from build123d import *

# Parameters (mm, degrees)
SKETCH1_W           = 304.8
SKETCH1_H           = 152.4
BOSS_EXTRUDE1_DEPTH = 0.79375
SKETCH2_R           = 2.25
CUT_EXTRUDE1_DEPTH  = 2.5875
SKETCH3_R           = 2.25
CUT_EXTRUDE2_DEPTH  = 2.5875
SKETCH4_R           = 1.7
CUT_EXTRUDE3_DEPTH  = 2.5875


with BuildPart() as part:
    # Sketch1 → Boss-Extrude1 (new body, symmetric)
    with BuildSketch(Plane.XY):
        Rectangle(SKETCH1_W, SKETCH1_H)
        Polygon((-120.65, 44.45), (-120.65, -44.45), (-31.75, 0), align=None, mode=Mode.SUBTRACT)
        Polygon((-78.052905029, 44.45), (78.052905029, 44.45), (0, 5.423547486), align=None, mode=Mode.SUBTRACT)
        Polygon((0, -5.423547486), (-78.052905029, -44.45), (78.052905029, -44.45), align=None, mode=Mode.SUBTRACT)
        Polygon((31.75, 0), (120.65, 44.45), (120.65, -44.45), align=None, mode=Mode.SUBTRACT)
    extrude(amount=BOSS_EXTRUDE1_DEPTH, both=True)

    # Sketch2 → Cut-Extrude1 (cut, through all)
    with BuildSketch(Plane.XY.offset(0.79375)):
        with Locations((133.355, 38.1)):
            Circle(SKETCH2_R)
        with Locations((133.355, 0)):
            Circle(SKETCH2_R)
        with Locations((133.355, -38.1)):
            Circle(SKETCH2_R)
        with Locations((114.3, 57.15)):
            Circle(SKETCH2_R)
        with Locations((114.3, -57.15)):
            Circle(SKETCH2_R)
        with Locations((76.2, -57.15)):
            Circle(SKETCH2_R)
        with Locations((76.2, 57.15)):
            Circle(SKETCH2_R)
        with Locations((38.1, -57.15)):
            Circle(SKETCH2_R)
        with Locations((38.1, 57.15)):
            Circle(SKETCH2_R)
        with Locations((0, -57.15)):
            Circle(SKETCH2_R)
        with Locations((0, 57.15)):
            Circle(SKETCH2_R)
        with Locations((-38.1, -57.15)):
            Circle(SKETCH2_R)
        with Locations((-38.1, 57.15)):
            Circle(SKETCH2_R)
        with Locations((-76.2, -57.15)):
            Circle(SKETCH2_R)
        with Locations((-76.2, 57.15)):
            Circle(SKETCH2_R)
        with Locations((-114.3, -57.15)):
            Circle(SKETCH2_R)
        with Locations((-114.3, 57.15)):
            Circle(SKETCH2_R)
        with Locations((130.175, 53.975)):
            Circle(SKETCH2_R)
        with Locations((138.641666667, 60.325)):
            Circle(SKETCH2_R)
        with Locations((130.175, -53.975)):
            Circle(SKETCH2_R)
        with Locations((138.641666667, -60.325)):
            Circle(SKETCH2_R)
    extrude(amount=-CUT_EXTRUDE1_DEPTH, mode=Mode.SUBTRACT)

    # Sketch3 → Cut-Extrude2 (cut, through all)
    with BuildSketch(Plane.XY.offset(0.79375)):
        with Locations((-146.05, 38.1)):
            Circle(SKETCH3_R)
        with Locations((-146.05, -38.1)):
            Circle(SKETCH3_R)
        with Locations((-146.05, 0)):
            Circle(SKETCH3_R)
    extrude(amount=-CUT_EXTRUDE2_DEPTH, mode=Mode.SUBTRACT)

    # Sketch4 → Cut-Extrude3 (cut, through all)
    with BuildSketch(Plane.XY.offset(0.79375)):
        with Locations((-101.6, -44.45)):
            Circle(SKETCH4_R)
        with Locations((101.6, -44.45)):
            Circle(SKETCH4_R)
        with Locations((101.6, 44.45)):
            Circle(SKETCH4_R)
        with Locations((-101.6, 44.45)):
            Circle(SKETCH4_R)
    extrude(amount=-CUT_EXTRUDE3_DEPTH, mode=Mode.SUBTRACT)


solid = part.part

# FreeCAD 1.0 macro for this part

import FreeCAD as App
import Part
import Sketcher

V = App.Vector
Q = App.Units.Quantity

doc = App.newDocument("Part")
body = doc.addObject("PartDesign::Body", "Body")

# Sketch on XY plane
sketch1 = body.newObject("Sketcher::SketchObject", "Sketch")
sketch1.AttachmentSupport = (doc.getObject("XY_Plane"), [""])
sketch1.MapMode = "FlatFace"
sketch1.addGeometry([
    Part.LineSegment(V(-152, 76, 0), V(-152, -76, 0)),  # 0
    Part.LineSegment(V(-152, -76, 0), V(152, -76, 0)),  # 1
    Part.LineSegment(V(152, -76, 0), V(152, 76, 0)),  # 2
    Part.LineSegment(V(152, 76, 0), V(-152, 76, 0)),  # 3
    Part.LineSegment(V(-78, -44, 0), V(0, -5, 0)),  # 4
    Part.LineSegment(V(0, -5, 0), V(78, -44, 0)),  # 5
    Part.LineSegment(V(78, -44, 0), V(-78, -44, 0)),  # 6
    Part.LineSegment(V(-121, -44, 0), V(-121, 44, 0)),  # 7
    Part.LineSegment(V(-121, 44, 0), V(-32, 0, 0)),  # 8
    Part.LineSegment(V(-32, 0, 0), V(-121, -44, 0)),  # 9
    Part.LineSegment(V(121, -44, 0), V(32, 0, 0)),  # 10
    Part.LineSegment(V(32, 0, 0), V(121, 44, 0)),  # 11
    Part.LineSegment(V(121, 44, 0), V(121, -44, 0)),  # 12
    Part.LineSegment(V(0, 5, 0), V(-78, 44, 0)),  # 13
    Part.LineSegment(V(-78, 44, 0), V(78, 44, 0)),  # 14
    Part.LineSegment(V(78, 44, 0), V(0, 5, 0)),  # 15
], False)
sketch1.addConstraint([
    Sketcher.Constraint("Coincident", 0, 2, 1, 1),
    Sketcher.Constraint("Coincident", 1, 2, 2, 1),
    Sketcher.Constraint("Coincident", 2, 2, 3, 1),
    Sketcher.Constraint("Coincident", 3, 2, 0, 1),
    Sketcher.Constraint("Coincident", 4, 2, 5, 1),
    Sketcher.Constraint("Coincident", 5, 2, 6, 1),
    Sketcher.Constraint("Coincident", 6, 2, 4, 1),
    Sketcher.Constraint("Coincident", 7, 2, 8, 1),
    Sketcher.Constraint("Coincident", 8, 2, 9, 1),
    Sketcher.Constraint("Coincident", 9, 2, 7, 1),
    Sketcher.Constraint("Coincident", 10, 2, 11, 1),
    Sketcher.Constraint("Coincident", 11, 2, 12, 1),
    Sketcher.Constraint("Coincident", 12, 2, 10, 1),
    Sketcher.Constraint("Coincident", 13, 2, 14, 1),
    Sketcher.Constraint("Coincident", 14, 2, 15, 1),
    Sketcher.Constraint("Coincident", 15, 2, 13, 1),
    Sketcher.Constraint("Vertical", 0),
    Sketcher.Constraint("Horizontal", 1),
    Sketcher.Constraint("Vertical", 2),
    Sketcher.Constraint("Horizontal", 3),
    Sketcher.Constraint("Horizontal", 6),
    Sketcher.Constraint("Vertical", 7),
    Sketcher.Constraint("Vertical", 12),
    Sketcher.Constraint("Horizontal", 14),
    Sketcher.Constraint("Symmetric", 0, 2, 2, 2, -1, 1),
    Sketcher.Constraint("Symmetric", 8, 2, 10, 2, -1, 1),
    Sketcher.Constraint("Symmetric", 9, 2, 11, 2, -1, 1),
    Sketcher.Constraint("Symmetric", 5, 2, 13, 2, -1, 1),
    Sketcher.Constraint("Symmetric", 4, 2, 15, 2, -1, 1),
    Sketcher.Constraint("PointOnObject", 4, 2, -2),
    Sketcher.Constraint("PointOnObject", 8, 2, -1),
    Sketcher.Constraint("Parallel", 5, 8),
    Sketcher.Constraint("Parallel", 4, 9),
    Sketcher.Constraint("Parallel", 8, 10),
    Sketcher.Constraint("Parallel", 11, 15),
    Sketcher.Constraint("Horizontal", 6, 2, 9, 2),
    Sketcher.Constraint("Horizontal", 7, 2, 11, 2),
    Sketcher.Constraint("DistanceX", 1, 1, 1, 2, Q("12 in")),
    Sketcher.Constraint("DistanceY", 0, 2, 0, 1, Q("6 in")),
    Sketcher.Constraint("DistanceY", 7, 1, 7, 2, Q("3.5 in")),
    Sketcher.Constraint("DistanceX", 7, 2, 8, 2, Q("3.5 in")),
    Sketcher.Constraint("DistanceX", 8, 2, 10, 2, Q("2.5 in")),
    Sketcher.Constraint("Distance", 4, 87.265801),
])
pad1 = body.newObject("PartDesign::Pad", "Pad")
pad1.Profile = sketch1
pad1.Length = Q("0.0625 in")
pad1.Midplane = True

# Sketch on XY plane
sketch2 = body.newObject("Sketcher::SketchObject", "Sketch001")
sketch2.AttachmentSupport = (doc.getObject("XY_Plane"), [""])
sketch2.MapMode = "FlatFace"
sketch2.AttachmentOffset = App.Placement(V(0, 0, 0.03125 * 25.4), App.Rotation())
sketch2.addGeometry([
    Part.Circle(V(133.4, 38.1, 0), V(0, 0, 1), 2.2),  # 0
    Part.Circle(V(133.4, 0, 0), V(0, 0, 1), 2.2),  # 1
    Part.Circle(V(133.4, -38.1, 0), V(0, 0, 1), 2.2),  # 2
    Part.Circle(V(114.3, 57.1, 0), V(0, 0, 1), 2.2),  # 3
    Part.Circle(V(114.3, -57.1, 0), V(0, 0, 1), 2.2),  # 4
    Part.Circle(V(76.2, -57.1, 0), V(0, 0, 1), 2.2),  # 5
    Part.Circle(V(76.2, 57.1, 0), V(0, 0, 1), 2.2),  # 6
    Part.Circle(V(38.1, -57.1, 0), V(0, 0, 1), 2.2),  # 7
    Part.Circle(V(38.1, 57.1, 0), V(0, 0, 1), 2.2),  # 8
    Part.Circle(V(0, -57.1, 0), V(0, 0, 1), 2.2),  # 9
    Part.Circle(V(0, 57.1, 0), V(0, 0, 1), 2.2),  # 10
    Part.Circle(V(-38.1, -57.1, 0), V(0, 0, 1), 2.2),  # 11
    Part.Circle(V(-38.1, 57.1, 0), V(0, 0, 1), 2.2),  # 12
    Part.Circle(V(-76.2, -57.1, 0), V(0, 0, 1), 2.2),  # 13
    Part.Circle(V(-76.2, 57.1, 0), V(0, 0, 1), 2.2),  # 14
    Part.Circle(V(-114.3, -57.1, 0), V(0, 0, 1), 2.2),  # 15
    Part.Circle(V(-114.3, 57.1, 0), V(0, 0, 1), 2.2),  # 16
    Part.Circle(V(130.2, 54, 0), V(0, 0, 1), 2.2),  # 17
    Part.Circle(V(138.6, 60.3, 0), V(0, 0, 1), 2.2),  # 18
    Part.Circle(V(130.2, -54, 0), V(0, 0, 1), 2.2),  # 19
    Part.Circle(V(138.6, -60.3, 0), V(0, 0, 1), 2.2),  # 20
], False)
sketch2.addConstraint([
    Sketcher.Constraint("Equal", 0, 1),
    Sketcher.Constraint("Equal", 1, 2),
    Sketcher.Constraint("Equal", 2, 3),
    Sketcher.Constraint("Equal", 3, 4),
    Sketcher.Constraint("Equal", 4, 5),
    Sketcher.Constraint("Equal", 5, 6),
    Sketcher.Constraint("Equal", 6, 7),
    Sketcher.Constraint("Equal", 7, 8),
    Sketcher.Constraint("Equal", 8, 9),
    Sketcher.Constraint("Equal", 9, 10),
    Sketcher.Constraint("Equal", 10, 11),
    Sketcher.Constraint("Equal", 11, 12),
    Sketcher.Constraint("Equal", 12, 13),
    Sketcher.Constraint("Equal", 13, 14),
    Sketcher.Constraint("Equal", 14, 15),
    Sketcher.Constraint("Equal", 15, 16),
    Sketcher.Constraint("Equal", 16, 17),
    Sketcher.Constraint("Equal", 17, 18),
    Sketcher.Constraint("Equal", 18, 19),
    Sketcher.Constraint("Equal", 19, 20),
    Sketcher.Constraint("Symmetric", 9, 3, 10, 3, -1, 1),
    Sketcher.Constraint("Symmetric", 8, 3, 11, 3, -1, 1),
    Sketcher.Constraint("Symmetric", 7, 3, 12, 3, -1, 1),
    Sketcher.Constraint("Symmetric", 6, 3, 13, 3, -1, 1),
    Sketcher.Constraint("Symmetric", 5, 3, 14, 3, -1, 1),
    Sketcher.Constraint("Symmetric", 3, 3, 15, 3, -1, 1),
    Sketcher.Constraint("Symmetric", 4, 3, 16, 3, -1, 1),
    Sketcher.Constraint("Symmetric", 7, 3, 11, 3, -2),
    Sketcher.Constraint("Symmetric", 5, 3, 13, 3, -2),
    Sketcher.Constraint("Symmetric", 4, 3, 15, 3, -2),
    Sketcher.Constraint("Symmetric", 0, 3, 2, 3, -1),
    Sketcher.Constraint("Symmetric", 17, 3, 19, 3, -1),
    Sketcher.Constraint("Symmetric", 18, 3, 20, 3, -1),
    Sketcher.Constraint("PointOnObject", 1, 3, -1),
    Sketcher.Constraint("PointOnObject", 9, 3, -2),
    Sketcher.Constraint("Horizontal", 4, 3, 5, 3),
    Sketcher.Constraint("Horizontal", 5, 3, 7, 3),
    Sketcher.Constraint("Horizontal", 7, 3, 9, 3),
    Sketcher.Constraint("Vertical", 0, 3, 1, 3),
    Sketcher.Constraint("DistanceX", -1, 1, 5, 3, Q("3 in")),
    Sketcher.Constraint("DistanceY", 2, 3, 0, 3, Q("3 in")),
    Sketcher.Constraint("DistanceX", 7, 3, 4, 3, Q("3 in")),
    Sketcher.Constraint("DistanceX", 11, 3, 7, 3, Q("3 in")),
    Sketcher.Constraint("DistanceY", 4, 3, 3, 3, Q("4.5 in")),
    Sketcher.Constraint("Diameter", 0, 4.5),
    Sketcher.Constraint("DistanceY", 17, 3, 18, 3, Q("0.25 in")),
    Sketcher.Constraint("DistanceX", -1, 1, 17, 3, Q("5.125 in")),
    Sketcher.Constraint("DistanceY", -1, 1, 17, 3, Q("2.125 in")),
    Sketcher.Constraint("DistanceX", -1, 1, 0, 3, 133.355),
    Sketcher.Constraint("DistanceX", -1, 1, 18, 3, 138.641667),
])
pocket1 = body.newObject("PartDesign::Pocket", "Pocket")
pocket1.Profile = sketch2
pocket1.Type = "ThroughAll"

# Sketch on XY plane
sketch3 = body.newObject("Sketcher::SketchObject", "Sketch002")
sketch3.AttachmentSupport = (doc.getObject("XY_Plane"), [""])
sketch3.MapMode = "FlatFace"
sketch3.AttachmentOffset = App.Placement(V(0, 0, 0.03125 * 25.4), App.Rotation())
sketch3.addGeometry([
    Part.Circle(V(-146.1, 38.1, 0), V(0, 0, 1), 2.2),
    Part.Circle(V(-146.1, -38.1, 0), V(0, 0, 1), 2.2),
    Part.Circle(V(-146.1, 0, 0), V(0, 0, 1), 2.2),
], False)
sketch3.addConstraint([
    Sketcher.Constraint("Equal", 0, 1),
    Sketcher.Constraint("Equal", 1, 2),
    Sketcher.Constraint("Symmetric", 0, 3, 1, 3, -1),
    Sketcher.Constraint("PointOnObject", 2, 3, -1),
    Sketcher.Constraint("Vertical", 1, 3, 2, 3),
    Sketcher.Constraint("DistanceY", 1, 3, 0, 3, Q("3 in")),
    Sketcher.Constraint("Diameter", 0, 4.5),
    Sketcher.Constraint("DistanceX", 0, 3, -1, 1, Q("5.75 in")),
])
pocket2 = body.newObject("PartDesign::Pocket", "Pocket001")
pocket2.Profile = sketch3
pocket2.Type = "ThroughAll"

# Sketch on XY plane
sketch4 = body.newObject("Sketcher::SketchObject", "Sketch003")
sketch4.AttachmentSupport = (doc.getObject("XY_Plane"), [""])
sketch4.MapMode = "FlatFace"
sketch4.AttachmentOffset = App.Placement(V(0, 0, 0.03125 * 25.4), App.Rotation())
sketch4.addGeometry([
    Part.Circle(V(-101.6, -44.5, 0), V(0, 0, 1), 1.7),
    Part.Circle(V(101.6, -44.5, 0), V(0, 0, 1), 1.7),
    Part.Circle(V(101.6, 44.5, 0), V(0, 0, 1), 1.7),
    Part.Circle(V(-101.6, 44.5, 0), V(0, 0, 1), 1.7),
], False)
sketch4.addConstraint([
    Sketcher.Constraint("Equal", 0, 1),
    Sketcher.Constraint("Equal", 1, 2),
    Sketcher.Constraint("Equal", 2, 3),
    Sketcher.Constraint("Symmetric", 0, 3, 2, 3, -1, 1),
    Sketcher.Constraint("Symmetric", 1, 3, 3, 3, -1, 1),
    Sketcher.Constraint("Symmetric", 0, 3, 1, 3, -2),
    Sketcher.Constraint("DistanceX", 0, 3, -1, 1, Q("4 in")),
    Sketcher.Constraint("DistanceY", 1, 3, 2, 3, Q("3.5 in")),
    Sketcher.Constraint("Diameter", 0, 3.4),
])
pocket3 = body.newObject("PartDesign::Pocket", "Pocket002")
pocket3.Profile = sketch4
pocket3.Type = "ThroughAll"

doc.recompute()
